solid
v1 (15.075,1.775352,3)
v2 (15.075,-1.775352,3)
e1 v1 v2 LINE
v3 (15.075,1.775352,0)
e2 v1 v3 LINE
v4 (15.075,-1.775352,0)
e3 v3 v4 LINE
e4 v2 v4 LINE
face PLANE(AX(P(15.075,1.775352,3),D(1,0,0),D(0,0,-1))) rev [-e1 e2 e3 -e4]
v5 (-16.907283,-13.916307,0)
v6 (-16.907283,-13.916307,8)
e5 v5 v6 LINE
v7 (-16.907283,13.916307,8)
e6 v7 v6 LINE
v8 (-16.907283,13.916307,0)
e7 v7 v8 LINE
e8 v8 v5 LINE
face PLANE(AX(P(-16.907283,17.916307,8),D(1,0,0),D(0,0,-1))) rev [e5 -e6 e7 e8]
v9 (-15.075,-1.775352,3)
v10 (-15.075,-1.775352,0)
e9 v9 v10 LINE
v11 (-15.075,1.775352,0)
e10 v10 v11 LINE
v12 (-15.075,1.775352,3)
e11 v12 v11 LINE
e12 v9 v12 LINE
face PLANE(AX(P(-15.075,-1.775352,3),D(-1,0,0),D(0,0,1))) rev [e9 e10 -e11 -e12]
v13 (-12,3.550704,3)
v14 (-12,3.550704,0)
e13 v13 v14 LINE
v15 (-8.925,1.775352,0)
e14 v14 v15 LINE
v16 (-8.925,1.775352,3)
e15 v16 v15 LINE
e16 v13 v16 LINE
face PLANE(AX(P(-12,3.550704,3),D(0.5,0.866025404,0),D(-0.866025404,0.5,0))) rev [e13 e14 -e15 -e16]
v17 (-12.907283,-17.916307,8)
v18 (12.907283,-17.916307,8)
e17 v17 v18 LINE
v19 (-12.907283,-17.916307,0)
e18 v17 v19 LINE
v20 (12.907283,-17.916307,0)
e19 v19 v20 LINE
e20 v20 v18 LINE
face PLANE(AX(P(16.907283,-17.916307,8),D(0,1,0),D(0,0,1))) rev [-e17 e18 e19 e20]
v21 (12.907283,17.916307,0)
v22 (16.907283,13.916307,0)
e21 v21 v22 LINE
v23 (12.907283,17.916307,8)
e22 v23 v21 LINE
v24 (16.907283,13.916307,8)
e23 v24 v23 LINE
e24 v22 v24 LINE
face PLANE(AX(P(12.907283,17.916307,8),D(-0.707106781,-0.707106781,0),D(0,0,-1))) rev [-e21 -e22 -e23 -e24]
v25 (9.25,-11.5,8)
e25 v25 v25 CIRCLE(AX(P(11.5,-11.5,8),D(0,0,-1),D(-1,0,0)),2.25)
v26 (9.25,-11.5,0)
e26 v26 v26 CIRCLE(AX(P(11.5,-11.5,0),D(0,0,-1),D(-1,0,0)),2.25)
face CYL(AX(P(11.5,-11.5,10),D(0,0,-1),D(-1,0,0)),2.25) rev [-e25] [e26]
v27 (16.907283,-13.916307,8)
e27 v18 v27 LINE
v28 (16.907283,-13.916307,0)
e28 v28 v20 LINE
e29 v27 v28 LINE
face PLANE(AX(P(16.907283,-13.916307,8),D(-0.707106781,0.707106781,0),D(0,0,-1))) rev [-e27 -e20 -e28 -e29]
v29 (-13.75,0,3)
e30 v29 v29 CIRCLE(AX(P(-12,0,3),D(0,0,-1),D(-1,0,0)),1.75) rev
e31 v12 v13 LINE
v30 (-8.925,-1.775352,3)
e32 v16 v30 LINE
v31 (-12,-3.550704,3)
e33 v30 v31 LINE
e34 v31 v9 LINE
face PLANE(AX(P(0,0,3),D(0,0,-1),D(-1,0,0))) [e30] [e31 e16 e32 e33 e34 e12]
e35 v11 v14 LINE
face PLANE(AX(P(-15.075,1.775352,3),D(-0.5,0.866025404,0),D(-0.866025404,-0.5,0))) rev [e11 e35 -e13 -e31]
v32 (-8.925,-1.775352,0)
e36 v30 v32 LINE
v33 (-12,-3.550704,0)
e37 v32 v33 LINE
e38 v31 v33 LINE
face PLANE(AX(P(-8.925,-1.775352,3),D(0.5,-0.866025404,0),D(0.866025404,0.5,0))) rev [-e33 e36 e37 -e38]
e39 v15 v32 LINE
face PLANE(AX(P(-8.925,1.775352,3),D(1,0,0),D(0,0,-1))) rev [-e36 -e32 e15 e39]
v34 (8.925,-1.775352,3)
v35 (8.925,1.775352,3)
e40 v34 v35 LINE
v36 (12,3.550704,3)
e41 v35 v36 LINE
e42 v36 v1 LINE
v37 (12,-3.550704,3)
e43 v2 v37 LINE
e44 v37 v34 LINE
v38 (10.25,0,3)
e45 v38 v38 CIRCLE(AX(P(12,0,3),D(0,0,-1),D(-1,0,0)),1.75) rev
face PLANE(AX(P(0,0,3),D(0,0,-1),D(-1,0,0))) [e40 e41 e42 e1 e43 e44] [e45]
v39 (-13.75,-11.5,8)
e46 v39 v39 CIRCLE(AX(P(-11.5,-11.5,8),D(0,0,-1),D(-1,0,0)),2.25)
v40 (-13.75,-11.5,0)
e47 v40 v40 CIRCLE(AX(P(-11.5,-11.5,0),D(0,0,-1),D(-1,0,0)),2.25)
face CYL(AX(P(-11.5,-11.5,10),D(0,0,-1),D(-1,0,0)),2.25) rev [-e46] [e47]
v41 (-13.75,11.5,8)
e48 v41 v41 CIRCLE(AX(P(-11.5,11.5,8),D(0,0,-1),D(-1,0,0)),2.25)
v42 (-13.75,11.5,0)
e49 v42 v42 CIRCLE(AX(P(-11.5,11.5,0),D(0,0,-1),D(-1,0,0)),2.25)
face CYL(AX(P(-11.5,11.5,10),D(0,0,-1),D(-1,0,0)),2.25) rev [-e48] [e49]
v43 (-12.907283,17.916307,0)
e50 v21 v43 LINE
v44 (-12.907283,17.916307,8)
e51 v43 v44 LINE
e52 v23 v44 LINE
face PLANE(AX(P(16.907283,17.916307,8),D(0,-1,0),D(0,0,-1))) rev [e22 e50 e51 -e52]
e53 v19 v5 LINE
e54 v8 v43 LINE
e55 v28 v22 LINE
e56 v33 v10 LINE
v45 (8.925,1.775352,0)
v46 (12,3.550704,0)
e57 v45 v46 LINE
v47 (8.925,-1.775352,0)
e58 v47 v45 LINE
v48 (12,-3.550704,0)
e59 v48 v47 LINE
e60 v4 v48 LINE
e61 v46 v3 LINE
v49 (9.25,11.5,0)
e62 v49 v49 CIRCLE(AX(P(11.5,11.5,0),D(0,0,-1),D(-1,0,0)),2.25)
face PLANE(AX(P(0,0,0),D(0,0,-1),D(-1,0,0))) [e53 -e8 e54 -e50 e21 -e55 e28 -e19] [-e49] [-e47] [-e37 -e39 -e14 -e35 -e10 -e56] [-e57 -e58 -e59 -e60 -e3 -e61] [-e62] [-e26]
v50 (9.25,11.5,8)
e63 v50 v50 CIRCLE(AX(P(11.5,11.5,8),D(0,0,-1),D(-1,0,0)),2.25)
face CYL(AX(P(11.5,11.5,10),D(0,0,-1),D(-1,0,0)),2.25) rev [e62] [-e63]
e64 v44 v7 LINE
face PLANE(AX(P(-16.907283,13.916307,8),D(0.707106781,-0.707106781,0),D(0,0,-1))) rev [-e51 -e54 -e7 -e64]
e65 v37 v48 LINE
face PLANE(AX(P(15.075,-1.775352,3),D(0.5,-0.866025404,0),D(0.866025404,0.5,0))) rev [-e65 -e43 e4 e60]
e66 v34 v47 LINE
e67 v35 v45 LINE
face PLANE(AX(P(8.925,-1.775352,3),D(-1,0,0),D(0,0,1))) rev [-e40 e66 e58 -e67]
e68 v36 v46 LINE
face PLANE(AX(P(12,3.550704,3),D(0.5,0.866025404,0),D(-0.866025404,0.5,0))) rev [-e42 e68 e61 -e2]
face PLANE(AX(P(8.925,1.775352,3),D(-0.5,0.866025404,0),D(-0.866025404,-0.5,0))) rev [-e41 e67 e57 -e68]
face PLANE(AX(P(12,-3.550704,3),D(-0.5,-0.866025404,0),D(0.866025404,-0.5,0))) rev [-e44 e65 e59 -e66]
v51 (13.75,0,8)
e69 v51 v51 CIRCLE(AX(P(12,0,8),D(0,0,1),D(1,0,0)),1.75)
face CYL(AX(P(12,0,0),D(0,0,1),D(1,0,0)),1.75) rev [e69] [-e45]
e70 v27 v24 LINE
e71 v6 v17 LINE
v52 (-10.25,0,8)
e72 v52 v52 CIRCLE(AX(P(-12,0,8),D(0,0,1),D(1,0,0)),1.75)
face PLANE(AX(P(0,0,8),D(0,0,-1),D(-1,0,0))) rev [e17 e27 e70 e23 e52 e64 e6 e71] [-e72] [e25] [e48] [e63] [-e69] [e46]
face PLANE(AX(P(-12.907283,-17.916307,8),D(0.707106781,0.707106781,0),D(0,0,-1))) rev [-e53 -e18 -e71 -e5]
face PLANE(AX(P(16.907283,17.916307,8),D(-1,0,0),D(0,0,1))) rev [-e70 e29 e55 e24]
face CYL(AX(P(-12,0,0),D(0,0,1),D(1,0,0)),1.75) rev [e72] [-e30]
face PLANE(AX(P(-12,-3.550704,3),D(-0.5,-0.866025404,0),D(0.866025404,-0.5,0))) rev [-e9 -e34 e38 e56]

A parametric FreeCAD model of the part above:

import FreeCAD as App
import Part
import Sketcher
Q = App.Units.Quantity


def edges_at(feature, points):
    """Names of the edges that pass closest to the given points."""
    edges = feature.Shape.Edges
    near = lambda p: min(range(len(edges)), key=lambda i: edges[i].distToShape(Part.Vertex(*p))[0])
    return sorted({f"Edge{near(p) + 1}" for p in points})


def add_polygon(sketch, points):
    """Adds a closed chain of lines whose ends are joined by coincident constraints."""
    first, n = sketch.GeometryCount, len(points)
    for a, b in zip(points, points[1:] + points[:1]):
        sketch.addGeometry(Part.LineSegment(App.Vector(*a, 0), App.Vector(*b, 0)), False)
    for i in range(n):
        sketch.addConstraint(Sketcher.Constraint("Coincident", first + i, 2, first + (i + 1) % n, 1))

doc = App.newDocument("Part")
body = doc.addObject("PartDesign::Body", "Body")

# Sketch on XY plane
sketch1 = body.newObject("Sketcher::SketchObject", "Sketch")
sketch1.AttachmentSupport = (doc.getObject("XY_Plane"), [""])
sketch1.MapMode = "FlatFace"
add_polygon(sketch1, [(-17, 18), (-17, -18), (17, -18), (17, 18)])  # lines 0-3
sketch1.addConstraint([
    Sketcher.Constraint("Vertical", 0),
    Sketcher.Constraint("Horizontal", 1),
    Sketcher.Constraint("Vertical", 2),
    Sketcher.Constraint("Horizontal", 3),
    Sketcher.Constraint("Symmetric", 0, 2, 2, 2, -1, 1),
    Sketcher.Constraint("DistanceX", 1, 1, 1, 2, Q("33.814565 mm")),
    Sketcher.Constraint("DistanceY", 0, 2, 0, 1, Q("35.832615 mm")),
])
pad1 = body.newObject("PartDesign::Pad", "Pad")
pad1.Profile = sketch1
pad1.Length = 8

# Sketch on XY plane
sketch2 = body.newObject("Sketcher::SketchObject", "Sketch001")
sketch2.AttachmentSupport = (doc.getObject("XY_Plane"), [""])
sketch2.MapMode = "FlatFace"
sketch2.AttachmentOffset = App.Placement(App.Vector(0, 0, 8), App.Rotation())
sketch2.addGeometry([
    Part.Circle(App.Vector(-12, 0, 0), App.Vector(0, 0, 1), 1.8),
    Part.Circle(App.Vector(12, 0, 0), App.Vector(0, 0, 1), 1.8),
], False)
sketch2.addConstraint([
    Sketcher.Constraint("Equal", 0, 1),
    Sketcher.Constraint("Symmetric", 0, 3, 1, 3, -1, 1),
    Sketcher.Constraint("PointOnObject", 0, 3, -1),
    Sketcher.Constraint("Diameter", 0, Q("3.5 mm")),
    Sketcher.Constraint("DistanceX", 0, 3, -1, 1, Q("12 mm")),
])
pocket1 = body.newObject("PartDesign::Pocket", "Pocket")
pocket1.Profile = sketch2
pocket1.Length = 8

# Sketch on XY plane
sketch3 = body.newObject("Sketcher::SketchObject", "Sketch002")
sketch3.AttachmentSupport = (doc.getObject("XY_Plane"), [""])
sketch3.MapMode = "FlatFace"
sketch3.addGeometry([
    Part.Circle(App.Vector(-11.5, -11.5, 0), App.Vector(0, 0, 1), 2.2),
    Part.Circle(App.Vector(11.5, -11.5, 0), App.Vector(0, 0, 1), 2.2),
    Part.Circle(App.Vector(11.5, 11.5, 0), App.Vector(0, 0, 1), 2.2),
    Part.Circle(App.Vector(-11.5, 11.5, 0), App.Vector(0, 0, 1), 2.2),
], False)
sketch3.addConstraint([
    Sketcher.Constraint("Equal", 0, 1),
    Sketcher.Constraint("Equal", 1, 2),
    Sketcher.Constraint("Equal", 2, 3),
    Sketcher.Constraint("Symmetric", 0, 3, 2, 3, -1, 1),
    Sketcher.Constraint("Symmetric", 1, 3, 3, 3, -1, 1),
    Sketcher.Constraint("Symmetric", 0, 3, 1, 3, -2),
    Sketcher.Constraint("Diameter", 0, Q("4.5 mm")),
    Sketcher.Constraint("DistanceX", 0, 3, 1, 3, Q("23 mm")),
    Sketcher.Constraint("DistanceY", 1, 3, 2, 3, Q("23 mm")),
])
pocket2 = body.newObject("PartDesign::Pocket", "Pocket001")
pocket2.Profile = sketch3
pocket2.Length = 10
pocket2.Reversed = True
doc.recompute()

chamfer = body.newObject("PartDesign::Chamfer", "Chamfer")
chamfer.Base = (pocket2, edges_at(pocket2, [
    (-16.907, 17.916, 4),
    (16.907, 17.916, 4),
    (16.907, -17.916, 4),
    (-16.907, -17.916, 4),
]))
chamfer.Size = 4

# Sketch on XY plane
sketch4 = body.newObject("Sketcher::SketchObject", "Sketch003")
sketch4.AttachmentSupport = (doc.getObject("XY_Plane"), [""])
sketch4.MapMode = "FlatFace"
add_polygon(sketch4, [(12, -3.6), (8.9, -1.8), (8.9, 1.8), (12, 3.6), (15.1, 1.8), (15.1, -1.8)])  # lines 0-5
add_polygon(sketch4, [(-12, -3.6), (-15.1, -1.8), (-15.1, 1.8), (-12, 3.6), (-8.9, 1.8), (-8.9, -1.8)])  # lines 6-11
sketch4.addConstraint([
    Sketcher.Constraint("Vertical", 1),
    Sketcher.Constraint("Vertical", 4),
    Sketcher.Constraint("Vertical", 7),
    Sketcher.Constraint("Vertical", 10),
    Sketcher.Constraint("Symmetric", 3, 2, 6, 2, -1, 1),
    Sketcher.Constraint("Symmetric", 5, 2, 8, 2, -1, 1),
    Sketcher.Constraint("Symmetric", 0, 2, 9, 2, -1, 1),
    Sketcher.Constraint("Symmetric", 2, 2, 11, 2, -1, 1),
    Sketcher.Constraint("Symmetric", 2, 2, 8, 2, -2),
    Sketcher.Constraint("Parallel", 0, 3),
    Sketcher.Constraint("Parallel", 2, 5),
    Sketcher.Constraint("Parallel", 5, 8),
    Sketcher.Constraint("Parallel", 8, 11),
    Sketcher.Constraint("Horizontal", 1, 2, 3, 2),
    Sketcher.Constraint("Horizontal", 0, 2, 4, 2),
    Sketcher.Constraint("Angle", 0, Q("150 deg")),
    Sketcher.Constraint("DistanceX", -1, 1, 2, 2, Q("12 mm")),
    Sketcher.Constraint("DistanceX", 1, 2, 3, 2, Q("6.15 mm")),
    Sketcher.Constraint("DistanceY", 1, 1, 1, 2, Q("3.550704 mm")),
])
pocket3 = body.newObject("PartDesign::Pocket", "Pocket002")
pocket3.Profile = sketch4
pocket3.Length = 3
pocket3.Reversed = True

doc.recompute()
